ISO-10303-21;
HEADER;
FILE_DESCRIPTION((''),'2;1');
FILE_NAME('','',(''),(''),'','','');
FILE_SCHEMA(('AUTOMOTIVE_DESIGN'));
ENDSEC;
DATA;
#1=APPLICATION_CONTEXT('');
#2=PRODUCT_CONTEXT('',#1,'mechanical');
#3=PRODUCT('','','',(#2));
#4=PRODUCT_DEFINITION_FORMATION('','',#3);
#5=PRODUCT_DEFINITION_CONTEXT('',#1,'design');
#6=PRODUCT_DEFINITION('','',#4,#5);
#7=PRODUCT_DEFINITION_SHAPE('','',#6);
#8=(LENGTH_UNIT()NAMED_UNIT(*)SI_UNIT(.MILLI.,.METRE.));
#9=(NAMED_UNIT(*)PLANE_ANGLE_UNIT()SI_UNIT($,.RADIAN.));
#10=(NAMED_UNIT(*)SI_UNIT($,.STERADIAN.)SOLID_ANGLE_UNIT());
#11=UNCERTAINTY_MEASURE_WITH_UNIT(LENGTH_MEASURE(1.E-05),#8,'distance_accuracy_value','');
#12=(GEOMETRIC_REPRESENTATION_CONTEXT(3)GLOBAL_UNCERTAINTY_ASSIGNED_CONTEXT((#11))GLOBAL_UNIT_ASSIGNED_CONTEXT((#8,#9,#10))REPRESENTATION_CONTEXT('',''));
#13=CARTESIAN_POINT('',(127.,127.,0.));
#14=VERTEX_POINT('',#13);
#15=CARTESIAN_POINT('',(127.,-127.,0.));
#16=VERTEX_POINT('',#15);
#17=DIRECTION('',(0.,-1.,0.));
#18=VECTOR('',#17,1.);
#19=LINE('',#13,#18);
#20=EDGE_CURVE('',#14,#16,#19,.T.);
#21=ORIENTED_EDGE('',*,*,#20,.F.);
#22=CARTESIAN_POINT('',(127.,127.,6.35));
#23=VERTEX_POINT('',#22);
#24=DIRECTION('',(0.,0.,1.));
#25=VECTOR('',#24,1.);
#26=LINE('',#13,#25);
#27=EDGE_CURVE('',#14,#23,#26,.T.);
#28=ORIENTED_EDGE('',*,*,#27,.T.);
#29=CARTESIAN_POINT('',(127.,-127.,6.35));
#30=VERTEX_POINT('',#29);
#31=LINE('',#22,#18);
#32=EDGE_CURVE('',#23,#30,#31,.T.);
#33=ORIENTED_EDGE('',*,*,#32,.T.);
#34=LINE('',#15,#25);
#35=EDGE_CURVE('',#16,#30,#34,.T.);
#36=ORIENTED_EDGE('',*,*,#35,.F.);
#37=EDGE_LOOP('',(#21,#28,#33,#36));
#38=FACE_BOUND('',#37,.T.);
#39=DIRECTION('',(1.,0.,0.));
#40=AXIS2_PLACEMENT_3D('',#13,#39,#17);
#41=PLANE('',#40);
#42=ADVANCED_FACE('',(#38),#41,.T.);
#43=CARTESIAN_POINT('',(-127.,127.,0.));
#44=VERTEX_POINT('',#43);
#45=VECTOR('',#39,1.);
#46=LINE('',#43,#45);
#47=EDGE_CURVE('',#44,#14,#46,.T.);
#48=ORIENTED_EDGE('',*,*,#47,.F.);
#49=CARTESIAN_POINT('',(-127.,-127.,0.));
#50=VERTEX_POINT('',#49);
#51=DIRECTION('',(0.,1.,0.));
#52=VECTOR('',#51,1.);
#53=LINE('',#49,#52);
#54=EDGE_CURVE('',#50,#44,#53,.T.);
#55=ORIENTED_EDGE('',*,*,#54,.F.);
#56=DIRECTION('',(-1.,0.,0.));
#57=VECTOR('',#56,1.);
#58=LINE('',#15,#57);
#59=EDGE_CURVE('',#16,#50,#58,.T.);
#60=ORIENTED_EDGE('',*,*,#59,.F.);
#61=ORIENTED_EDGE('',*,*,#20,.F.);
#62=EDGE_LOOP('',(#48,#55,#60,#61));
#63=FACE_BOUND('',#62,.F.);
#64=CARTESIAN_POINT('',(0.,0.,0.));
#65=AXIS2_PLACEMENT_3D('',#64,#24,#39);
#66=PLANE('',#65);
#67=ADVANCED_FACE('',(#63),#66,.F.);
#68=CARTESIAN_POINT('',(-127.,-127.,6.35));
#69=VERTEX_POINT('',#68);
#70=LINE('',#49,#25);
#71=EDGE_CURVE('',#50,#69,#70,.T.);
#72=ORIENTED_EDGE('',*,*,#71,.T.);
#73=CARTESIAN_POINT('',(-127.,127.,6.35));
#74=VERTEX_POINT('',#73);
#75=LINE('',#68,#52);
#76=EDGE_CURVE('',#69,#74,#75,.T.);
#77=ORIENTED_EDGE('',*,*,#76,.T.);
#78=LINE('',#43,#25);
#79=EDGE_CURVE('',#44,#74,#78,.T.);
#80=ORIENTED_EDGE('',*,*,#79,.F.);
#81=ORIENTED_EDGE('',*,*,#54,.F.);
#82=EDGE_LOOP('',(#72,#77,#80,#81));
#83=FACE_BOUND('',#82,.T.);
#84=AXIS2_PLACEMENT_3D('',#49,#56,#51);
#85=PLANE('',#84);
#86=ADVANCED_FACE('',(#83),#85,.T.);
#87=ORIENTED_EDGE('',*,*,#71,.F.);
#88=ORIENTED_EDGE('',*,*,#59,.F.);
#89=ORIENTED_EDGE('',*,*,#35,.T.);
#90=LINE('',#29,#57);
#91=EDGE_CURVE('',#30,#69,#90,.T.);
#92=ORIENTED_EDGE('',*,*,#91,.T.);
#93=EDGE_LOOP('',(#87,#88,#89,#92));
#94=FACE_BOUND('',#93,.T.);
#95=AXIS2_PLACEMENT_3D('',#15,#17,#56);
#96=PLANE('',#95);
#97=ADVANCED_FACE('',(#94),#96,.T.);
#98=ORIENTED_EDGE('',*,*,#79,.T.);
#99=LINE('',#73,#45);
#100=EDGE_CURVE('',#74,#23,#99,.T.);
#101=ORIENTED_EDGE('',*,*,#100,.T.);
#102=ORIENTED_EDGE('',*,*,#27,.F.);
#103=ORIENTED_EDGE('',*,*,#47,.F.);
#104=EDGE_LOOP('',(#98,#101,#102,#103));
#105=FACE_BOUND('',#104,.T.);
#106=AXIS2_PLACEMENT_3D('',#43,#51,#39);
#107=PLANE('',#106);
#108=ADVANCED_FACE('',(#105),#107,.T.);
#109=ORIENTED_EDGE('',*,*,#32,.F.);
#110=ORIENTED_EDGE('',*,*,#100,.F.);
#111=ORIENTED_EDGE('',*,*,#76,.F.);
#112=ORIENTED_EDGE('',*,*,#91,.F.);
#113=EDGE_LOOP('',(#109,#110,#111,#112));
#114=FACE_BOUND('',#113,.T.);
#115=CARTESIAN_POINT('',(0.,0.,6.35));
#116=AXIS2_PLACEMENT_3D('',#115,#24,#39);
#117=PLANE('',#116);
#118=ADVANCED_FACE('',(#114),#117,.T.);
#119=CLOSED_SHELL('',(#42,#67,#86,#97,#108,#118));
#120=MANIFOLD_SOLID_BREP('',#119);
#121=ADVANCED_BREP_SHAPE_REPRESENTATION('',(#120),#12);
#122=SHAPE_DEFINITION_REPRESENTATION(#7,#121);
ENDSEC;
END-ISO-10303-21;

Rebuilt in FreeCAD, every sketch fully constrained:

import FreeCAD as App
import Part
import Sketcher
Q = App.Units.Quantity

doc = App.newDocument("Part")
params = doc.addObject("Spreadsheet::Sheet", "Params")
for row, (alias, value) in enumerate([
    ("sketch1_width", "10 in"),
    ("pad1_length", "0.25 in"),
], start=1):
    params.set(f"A{row}", alias)
    params.set(f"B{row}", "=" + value)
    params.setAlias(f"B{row}", alias)

body = doc.addObject("PartDesign::Body", "Body")

# Sketch on XY plane
sketch1 = body.newObject("Sketcher::SketchObject", "Sketch")
sketch1.AttachmentSupport = (doc.getObject("XY_Plane"), [""])
sketch1.MapMode = "FlatFace"
sketch1.addGeometry([
    Part.LineSegment(App.Vector(127, 127, 0), App.Vector(-127, 127, 0)),
    Part.LineSegment(App.Vector(-127, 127, 0), App.Vector(-127, -127, 0)),
    Part.LineSegment(App.Vector(-127, -127, 0), App.Vector(127, -127, 0)),
    Part.LineSegment(App.Vector(127, -127, 0), App.Vector(127, 127, 0)),
], False)
sketch1.addConstraint([
    Sketcher.Constraint("Coincident", 0, 2, 1, 1),
    Sketcher.Constraint("Coincident", 1, 2, 2, 1),
    Sketcher.Constraint("Coincident", 2, 2, 3, 1),
    Sketcher.Constraint("Coincident", 3, 2, 0, 1),
    Sketcher.Constraint("Horizontal", 0),
    Sketcher.Constraint("Vertical", 1),
    Sketcher.Constraint("Horizontal", 2),
    Sketcher.Constraint("Vertical", 3),
    Sketcher.Constraint("Symmetric", 0, 2, 2, 2, -1, 1),
    Sketcher.Constraint("Equal", 2, 1),
    Sketcher.Constraint("DistanceX", 0, 2, 0, 1, Q("10 in")),
])
sketch1.setExpression("Constraints[10]", "Params.sketch1_width")
pad1 = body.newObject("PartDesign::Pad", "Pad")
pad1.Profile = sketch1
pad1.setExpression("Length", "Params.pad1_length")

doc.recompute()
